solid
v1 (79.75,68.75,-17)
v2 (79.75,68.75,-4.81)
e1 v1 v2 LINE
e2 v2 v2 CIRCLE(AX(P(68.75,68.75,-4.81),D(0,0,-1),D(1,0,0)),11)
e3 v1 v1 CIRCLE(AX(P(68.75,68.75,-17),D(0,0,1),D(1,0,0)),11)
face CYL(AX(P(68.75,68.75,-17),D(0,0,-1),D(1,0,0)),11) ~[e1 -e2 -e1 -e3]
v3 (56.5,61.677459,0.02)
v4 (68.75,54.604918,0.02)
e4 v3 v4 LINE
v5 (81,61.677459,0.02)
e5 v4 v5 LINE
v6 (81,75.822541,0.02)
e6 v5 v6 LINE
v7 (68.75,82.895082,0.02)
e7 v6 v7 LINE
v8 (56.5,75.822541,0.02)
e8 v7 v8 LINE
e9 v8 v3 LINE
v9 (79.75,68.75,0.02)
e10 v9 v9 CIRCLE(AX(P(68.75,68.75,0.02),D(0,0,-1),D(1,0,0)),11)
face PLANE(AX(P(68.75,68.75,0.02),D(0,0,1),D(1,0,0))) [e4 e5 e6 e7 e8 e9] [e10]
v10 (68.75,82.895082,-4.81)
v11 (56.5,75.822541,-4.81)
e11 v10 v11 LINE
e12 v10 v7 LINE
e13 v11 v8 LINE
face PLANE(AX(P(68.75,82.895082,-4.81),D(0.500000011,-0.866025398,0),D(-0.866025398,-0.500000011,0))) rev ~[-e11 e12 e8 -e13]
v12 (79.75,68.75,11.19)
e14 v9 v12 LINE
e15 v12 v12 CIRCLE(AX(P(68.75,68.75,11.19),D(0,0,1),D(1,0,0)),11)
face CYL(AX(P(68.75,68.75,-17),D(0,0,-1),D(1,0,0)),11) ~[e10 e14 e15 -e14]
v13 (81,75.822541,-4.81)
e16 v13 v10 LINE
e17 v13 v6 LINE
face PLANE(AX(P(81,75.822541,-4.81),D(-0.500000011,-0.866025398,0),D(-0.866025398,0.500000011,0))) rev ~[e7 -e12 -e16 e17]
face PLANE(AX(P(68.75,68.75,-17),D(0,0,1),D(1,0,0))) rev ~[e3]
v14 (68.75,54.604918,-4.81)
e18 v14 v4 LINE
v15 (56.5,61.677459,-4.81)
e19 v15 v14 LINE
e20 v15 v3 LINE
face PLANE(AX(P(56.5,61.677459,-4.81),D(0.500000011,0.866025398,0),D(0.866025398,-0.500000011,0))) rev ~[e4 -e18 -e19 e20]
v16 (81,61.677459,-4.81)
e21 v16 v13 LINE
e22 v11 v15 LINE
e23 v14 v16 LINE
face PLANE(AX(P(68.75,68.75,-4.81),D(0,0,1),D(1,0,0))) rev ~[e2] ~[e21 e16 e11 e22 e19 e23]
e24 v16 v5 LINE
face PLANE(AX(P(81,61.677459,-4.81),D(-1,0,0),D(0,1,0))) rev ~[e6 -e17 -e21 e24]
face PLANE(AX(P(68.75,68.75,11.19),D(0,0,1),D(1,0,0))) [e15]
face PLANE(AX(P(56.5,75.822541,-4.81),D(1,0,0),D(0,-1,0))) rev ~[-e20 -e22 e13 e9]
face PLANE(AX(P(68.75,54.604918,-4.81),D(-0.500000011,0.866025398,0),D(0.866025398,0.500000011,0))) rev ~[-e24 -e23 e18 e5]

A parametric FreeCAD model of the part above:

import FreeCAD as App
import Part
import Sketcher
Q = App.Units.Quantity

doc = App.newDocument("Part")
body = doc.addObject("PartDesign::Body", "Body")

# Sketch on XY plane
sketch1 = body.newObject("Sketcher::SketchObject", "Sketch")
sketch1.AttachmentSupport = (doc.getObject("XY_Plane"), [""])
sketch1.MapMode = "FlatFace"
sketch1.addGeometry(Part.LineSegment(App.Vector(12, -7, 0), App.Vector(12, 7, 0)), False)
sketch1.addGeometry(Part.LineSegment(App.Vector(12, 7, 0), App.Vector(0, 14, 0)), False)
sketch1.addGeometry(Part.LineSegment(App.Vector(0, 14, 0), App.Vector(-12, 7, 0)), False)
sketch1.addGeometry(Part.LineSegment(App.Vector(-12, 7, 0), App.Vector(-12, -7, 0)), False)
sketch1.addGeometry(Part.LineSegment(App.Vector(-12, -7, 0), App.Vector(0, -14, 0)), False)
sketch1.addGeometry(Part.LineSegment(App.Vector(0, -14, 0), App.Vector(12, -7, 0)), False)
sketch1.addConstraint(Sketcher.Constraint("Coincident", 0, 2, 1, 1))
sketch1.addConstraint(Sketcher.Constraint("Coincident", 1, 2, 2, 1))
sketch1.addConstraint(Sketcher.Constraint("Coincident", 2, 2, 3, 1))
sketch1.addConstraint(Sketcher.Constraint("Coincident", 3, 2, 4, 1))
sketch1.addConstraint(Sketcher.Constraint("Coincident", 4, 2, 5, 1))
sketch1.addConstraint(Sketcher.Constraint("Coincident", 5, 2, 0, 1))
sketch1.addConstraint(Sketcher.Constraint("Vertical", 0))
sketch1.addConstraint(Sketcher.Constraint("Vertical", 3))
sketch1.addConstraint(Sketcher.Constraint("Symmetric", 0, 2, 3, 2, -1, 1))
sketch1.addConstraint(Sketcher.Constraint("Symmetric", 1, 2, 4, 2, -1, 1))
sketch1.addConstraint(Sketcher.Constraint("PointOnObject", 1, 2, -2))
sketch1.addConstraint(Sketcher.Constraint("Parallel", 2, 5))
sketch1.addConstraint(Sketcher.Constraint("Horizontal", 0, 2, 2, 2))
sketch1.addConstraint(Sketcher.Constraint("Angle", 1, Q("149.999999 deg")))
sketch1.addConstraint(Sketcher.Constraint("DistanceX", 2, 2, 0, 2, Q("24.5 mm")))
sketch1.addConstraint(Sketcher.Constraint("DistanceY", 0, 1, 0, 2, Q("14.145082 mm")))
pad1 = body.newObject("PartDesign::Pad", "Pad")
pad1.Profile = sketch1
pad1.Length = 4.83
body2 = doc.addObject("PartDesign::Body", "Body001")
doc.recompute()

body.Placement = App.Placement(App.Vector(0, 0, 12.19), App.Rotation(App.Vector(0, 0, 1), 0))
boolean = body2.newObject("PartDesign::Boolean", "Boolean")
boolean.Type = "Fuse"
boolean.addObjects([body])
body3 = doc.addObject("PartDesign::Body", "Body002")

# Sketch on XY plane
sketch2 = body3.newObject("Sketcher::SketchObject", "Sketch001")
sketch2.AttachmentSupport = (doc.getObject("XY_Plane002"), [""])
sketch2.MapMode = "FlatFace"
sketch2.addGeometry(Part.Circle(App.Vector(0, 0, 0), App.Vector(0, 0, 1), 11), False)
sketch2.addConstraint(Sketcher.Constraint("Coincident", 0, 3, -1, 1))
sketch2.addConstraint(Sketcher.Constraint("Diameter", 0, Q("22 mm")))
pad2 = body3.newObject("PartDesign::Pad", "Pad001")
pad2.Profile = sketch2
pad2.Length = 28.19
doc.recompute()

boolean2 = body3.newObject("PartDesign::Boolean", "Boolean001")
boolean2.Type = "Fuse"
boolean2.addObjects([body2])
body4 = doc.addObject("PartDesign::Body", "Body003")
doc.recompute()

body3.Placement = App.Placement(App.Vector(68.75, 68.75, -17), App.Rotation(App.Vector(0, 0, 1), 0))
boolean3 = body4.newObject("PartDesign::Boolean", "Boolean002")
boolean3.Type = "Fuse"
boolean3.addObjects([body3])

doc.recompute()
